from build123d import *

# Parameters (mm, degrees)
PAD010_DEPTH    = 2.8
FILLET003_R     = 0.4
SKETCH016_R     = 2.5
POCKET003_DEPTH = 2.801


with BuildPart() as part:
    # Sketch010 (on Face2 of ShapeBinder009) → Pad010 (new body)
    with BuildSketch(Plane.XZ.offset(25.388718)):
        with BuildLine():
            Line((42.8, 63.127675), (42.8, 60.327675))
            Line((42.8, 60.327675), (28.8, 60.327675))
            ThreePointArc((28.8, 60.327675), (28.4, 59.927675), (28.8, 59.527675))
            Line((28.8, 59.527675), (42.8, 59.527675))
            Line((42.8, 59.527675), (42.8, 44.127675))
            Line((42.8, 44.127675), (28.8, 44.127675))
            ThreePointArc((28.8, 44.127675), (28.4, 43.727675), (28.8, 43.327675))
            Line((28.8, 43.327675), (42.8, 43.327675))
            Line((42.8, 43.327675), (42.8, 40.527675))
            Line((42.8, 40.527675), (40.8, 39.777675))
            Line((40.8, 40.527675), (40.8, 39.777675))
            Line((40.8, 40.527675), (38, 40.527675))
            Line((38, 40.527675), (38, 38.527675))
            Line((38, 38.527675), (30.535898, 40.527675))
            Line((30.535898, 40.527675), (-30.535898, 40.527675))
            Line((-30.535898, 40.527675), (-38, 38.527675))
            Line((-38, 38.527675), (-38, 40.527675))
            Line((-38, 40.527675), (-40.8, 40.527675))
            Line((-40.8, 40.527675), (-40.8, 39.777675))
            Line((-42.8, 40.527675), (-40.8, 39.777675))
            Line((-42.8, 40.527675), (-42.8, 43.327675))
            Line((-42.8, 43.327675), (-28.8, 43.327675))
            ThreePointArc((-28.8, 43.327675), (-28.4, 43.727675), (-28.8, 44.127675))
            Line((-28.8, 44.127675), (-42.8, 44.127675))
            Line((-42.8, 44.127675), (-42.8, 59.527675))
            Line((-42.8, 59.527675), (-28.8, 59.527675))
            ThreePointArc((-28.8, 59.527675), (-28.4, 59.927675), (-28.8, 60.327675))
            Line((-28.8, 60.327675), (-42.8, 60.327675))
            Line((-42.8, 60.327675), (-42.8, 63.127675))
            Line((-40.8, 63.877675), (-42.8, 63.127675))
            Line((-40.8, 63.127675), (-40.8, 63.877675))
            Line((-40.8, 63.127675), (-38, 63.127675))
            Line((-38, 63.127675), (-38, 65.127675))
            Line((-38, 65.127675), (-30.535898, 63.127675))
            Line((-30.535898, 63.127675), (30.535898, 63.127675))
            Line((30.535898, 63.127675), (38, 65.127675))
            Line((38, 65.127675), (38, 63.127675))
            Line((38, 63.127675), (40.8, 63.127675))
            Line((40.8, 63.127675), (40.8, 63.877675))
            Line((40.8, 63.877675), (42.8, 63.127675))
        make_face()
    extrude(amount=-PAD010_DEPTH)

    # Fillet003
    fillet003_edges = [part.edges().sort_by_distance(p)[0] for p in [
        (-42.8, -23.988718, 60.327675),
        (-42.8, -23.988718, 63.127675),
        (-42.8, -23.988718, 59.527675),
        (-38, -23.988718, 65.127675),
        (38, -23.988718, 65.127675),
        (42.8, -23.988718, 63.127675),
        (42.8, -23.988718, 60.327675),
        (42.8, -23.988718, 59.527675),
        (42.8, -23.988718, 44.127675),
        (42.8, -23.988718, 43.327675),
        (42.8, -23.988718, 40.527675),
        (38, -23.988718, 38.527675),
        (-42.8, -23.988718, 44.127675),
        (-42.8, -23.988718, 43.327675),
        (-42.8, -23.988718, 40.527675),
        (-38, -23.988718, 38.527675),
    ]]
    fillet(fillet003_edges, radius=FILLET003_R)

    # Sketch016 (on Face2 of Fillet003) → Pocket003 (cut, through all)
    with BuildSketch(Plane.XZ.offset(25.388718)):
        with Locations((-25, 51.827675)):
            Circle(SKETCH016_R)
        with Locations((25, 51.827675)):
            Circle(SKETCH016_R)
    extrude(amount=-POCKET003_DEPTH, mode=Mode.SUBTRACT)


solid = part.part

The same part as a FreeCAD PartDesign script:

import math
import FreeCAD as App
import Part
import Sketcher
Q = App.Units.Quantity


def edges_at(feature, points):
    """Names of the edges that pass closest to the given points."""
    edges = feature.Shape.Edges
    near = lambda p: min(range(len(edges)), key=lambda i: edges[i].distToShape(Part.Vertex(*p))[0])
    return sorted({f"Edge{near(p) + 1}" for p in points})

doc = App.newDocument("Part")
params = doc.addObject("Spreadsheet::Sheet", "Params")
for row, (alias, value) in enumerate([
    ("sketch1_radius", "0.4 mm"),
    ("sketch1_width", "14 mm"),
    ("sketch1_height", "2 mm"),
    ("sketch1_width2", "2.8 mm"),
    ("sketch1_height2", "15.4 mm"),
    ("pad1_length", "2.8 mm"),
    ("fillet_radius", "0.4 mm"),
    ("sketch2_diameter", "5 mm"),
], start=1):
    params.set(f"A{row}", alias)
    params.set(f"B{row}", "=" + value)
    params.setAlias(f"B{row}", alias)

body = doc.addObject("PartDesign::Body", "Body")

# Sketch on XZ plane
sketch1 = body.newObject("Sketcher::SketchObject", "Sketch")
sketch1.AttachmentSupport = (doc.getObject("XZ_Plane"), [""])
sketch1.MapMode = "FlatFace"
sketch1.AttachmentOffset = App.Placement(App.Vector(0, 0, 25.388718), App.Rotation())
sketch1.addGeometry(Part.LineSegment(App.Vector(42.8, 60.33, 0), App.Vector(42.8, 63.13, 0)), False)
sketch1.addGeometry(Part.LineSegment(App.Vector(42.8, 63.13, 0), App.Vector(40.8, 63.88, 0)), False)
sketch1.addGeometry(Part.LineSegment(App.Vector(40.8, 63.88, 0), App.Vector(40.8, 63.13, 0)), False)
sketch1.addGeometry(Part.LineSegment(App.Vector(40.8, 63.13, 0), App.Vector(38, 63.13, 0)), False)
sketch1.addGeometry(Part.LineSegment(App.Vector(38, 63.13, 0), App.Vector(38, 65.13, 0)), False)
sketch1.addGeometry(Part.LineSegment(App.Vector(38, 65.13, 0), App.Vector(30.54, 63.13, 0)), False)
sketch1.addGeometry(Part.LineSegment(App.Vector(30.54, 63.13, 0), App.Vector(-30.54, 63.13, 0)), False)
sketch1.addGeometry(Part.LineSegment(App.Vector(-30.54, 63.13, 0), App.Vector(-38, 65.13, 0)), False)
sketch1.addGeometry(Part.LineSegment(App.Vector(-38, 65.13, 0), App.Vector(-38, 63.13, 0)), False)
sketch1.addGeometry(Part.LineSegment(App.Vector(-38, 63.13, 0), App.Vector(-40.8, 63.13, 0)), False)
sketch1.addGeometry(Part.LineSegment(App.Vector(-40.8, 63.13, 0), App.Vector(-40.8, 63.88, 0)), False)
sketch1.addGeometry(Part.LineSegment(App.Vector(-40.8, 63.88, 0), App.Vector(-42.8, 63.13, 0)), False)
sketch1.addGeometry(Part.LineSegment(App.Vector(-42.8, 63.13, 0), App.Vector(-42.8, 60.33, 0)), False)
sketch1.addGeometry(Part.LineSegment(App.Vector(-42.8, 60.33, 0), App.Vector(-28.8, 60.33, 0)), False)
sketch1.addGeometry(Part.ArcOfCircle(Part.Circle(App.Vector(-28.8, 59.93, 0), App.Vector(0, 0, 1), 0.4), math.radians(-90), math.radians(90)), False)
sketch1.addGeometry(Part.LineSegment(App.Vector(-28.8, 59.53, 0), App.Vector(-42.8, 59.53, 0)), False)
sketch1.addGeometry(Part.LineSegment(App.Vector(-42.8, 59.53, 0), App.Vector(-42.8, 44.13, 0)), False)
sketch1.addGeometry(Part.LineSegment(App.Vector(-42.8, 44.13, 0), App.Vector(-28.8, 44.13, 0)), False)
sketch1.addGeometry(Part.ArcOfCircle(Part.Circle(App.Vector(-28.8, 43.73, 0), App.Vector(0, 0, 1), 0.4), math.radians(-90), math.radians(90)), False)
sketch1.addGeometry(Part.LineSegment(App.Vector(-28.8, 43.33, 0), App.Vector(-42.8, 43.33, 0)), False)
sketch1.addGeometry(Part.LineSegment(App.Vector(-42.8, 43.33, 0), App.Vector(-42.8, 40.53, 0)), False)
sketch1.addGeometry(Part.LineSegment(App.Vector(-42.8, 40.53, 0), App.Vector(-40.8, 39.78, 0)), False)
sketch1.addGeometry(Part.LineSegment(App.Vector(-40.8, 39.78, 0), App.Vector(-40.8, 40.53, 0)), False)
sketch1.addGeometry(Part.LineSegment(App.Vector(-40.8, 40.53, 0), App.Vector(-38, 40.53, 0)), False)
sketch1.addGeometry(Part.LineSegment(App.Vector(-38, 40.53, 0), App.Vector(-38, 38.53, 0)), False)
sketch1.addGeometry(Part.LineSegment(App.Vector(-38, 38.53, 0), App.Vector(-30.54, 40.53, 0)), False)
sketch1.addGeometry(Part.LineSegment(App.Vector(-30.54, 40.53, 0), App.Vector(30.54, 40.53, 0)), False)
sketch1.addGeometry(Part.LineSegment(App.Vector(30.54, 40.53, 0), App.Vector(38, 38.53, 0)), False)
sketch1.addGeometry(Part.LineSegment(App.Vector(38, 38.53, 0), App.Vector(38, 40.53, 0)), False)
sketch1.addGeometry(Part.LineSegment(App.Vector(38, 40.53, 0), App.Vector(40.8, 40.53, 0)), False)
sketch1.addGeometry(Part.LineSegment(App.Vector(40.8, 40.53, 0), App.Vector(40.8, 39.78, 0)), False)
sketch1.addGeometry(Part.LineSegment(App.Vector(40.8, 39.78, 0), App.Vector(42.8, 40.53, 0)), False)
sketch1.addGeometry(Part.LineSegment(App.Vector(42.8, 40.53, 0), App.Vector(42.8, 43.33, 0)), False)
sketch1.addGeometry(Part.LineSegment(App.Vector(42.8, 43.33, 0), App.Vector(28.8, 43.33, 0)), False)
sketch1.addGeometry(Part.ArcOfCircle(Part.Circle(App.Vector(28.8, 43.73, 0), App.Vector(0, 0, 1), 0.4), math.radians(90), math.radians(270)), False)
sketch1.addGeometry(Part.LineSegment(App.Vector(28.8, 44.13, 0), App.Vector(42.8, 44.13, 0)), False)
sketch1.addGeometry(Part.LineSegment(App.Vector(42.8, 44.13, 0), App.Vector(42.8, 59.53, 0)), False)
sketch1.addGeometry(Part.LineSegment(App.Vector(42.8, 59.53, 0), App.Vector(28.8, 59.53, 0)), False)
sketch1.addGeometry(Part.ArcOfCircle(Part.Circle(App.Vector(28.8, 59.93, 0), App.Vector(0, 0, 1), 0.4), math.radians(90), math.radians(270)), False)
sketch1.addGeometry(Part.LineSegment(App.Vector(28.8, 60.33, 0), App.Vector(42.8, 60.33, 0)), False)
sketch1.addConstraint(Sketcher.Constraint("Coincident", 0, 2, 1, 1))
sketch1.addConstraint(Sketcher.Constraint("Coincident", 1, 2, 2, 1))
sketch1.addConstraint(Sketcher.Constraint("Coincident", 2, 2, 3, 1))
sketch1.addConstraint(Sketcher.Constraint("Coincident", 3, 2, 4, 1))
sketch1.addConstraint(Sketcher.Constraint("Coincident", 4, 2, 5, 1))
sketch1.addConstraint(Sketcher.Constraint("Coincident", 5, 2, 6, 1))
sketch1.addConstraint(Sketcher.Constraint("Coincident", 6, 2, 7, 1))
sketch1.addConstraint(Sketcher.Constraint("Coincident", 7, 2, 8, 1))
sketch1.addConstraint(Sketcher.Constraint("Coincident", 8, 2, 9, 1))
sketch1.addConstraint(Sketcher.Constraint("Coincident", 9, 2, 10, 1))
sketch1.addConstraint(Sketcher.Constraint("Coincident", 10, 2, 11, 1))
sketch1.addConstraint(Sketcher.Constraint("Coincident", 11, 2, 12, 1))
sketch1.addConstraint(Sketcher.Constraint("Coincident", 12, 2, 13, 1))
sketch1.addConstraint(Sketcher.Constraint("Tangent", 13, 2, 14, 2))
sketch1.addConstraint(Sketcher.Constraint("Tangent", 14, 1, 15, 1))
sketch1.addConstraint(Sketcher.Constraint("Coincident", 15, 2, 16, 1))
sketch1.addConstraint(Sketcher.Constraint("Coincident", 16, 2, 17, 1))
sketch1.addConstraint(Sketcher.Constraint("Tangent", 17, 2, 18, 2))
sketch1.addConstraint(Sketcher.Constraint("Tangent", 18, 1, 19, 1))
sketch1.addConstraint(Sketcher.Constraint("Coincident", 19, 2, 20, 1))
sketch1.addConstraint(Sketcher.Constraint("Coincident", 20, 2, 21, 1))
sketch1.addConstraint(Sketcher.Constraint("Coincident", 21, 2, 22, 1))
sketch1.addConstraint(Sketcher.Constraint("Coincident", 22, 2, 23, 1))
sketch1.addConstraint(Sketcher.Constraint("Coincident", 23, 2, 24, 1))
sketch1.addConstraint(Sketcher.Constraint("Coincident", 24, 2, 25, 1))
sketch1.addConstraint(Sketcher.Constraint("Coincident", 25, 2, 26, 1))
sketch1.addConstraint(Sketcher.Constraint("Coincident", 26, 2, 27, 1))
sketch1.addConstraint(Sketcher.Constraint("Coincident", 27, 2, 28, 1))
sketch1.addConstraint(Sketcher.Constraint("Coincident", 28, 2, 29, 1))
sketch1.addConstraint(Sketcher.Constraint("Coincident", 29, 2, 30, 1))
sketch1.addConstraint(Sketcher.Constraint("Coincident", 30, 2, 31, 1))
sketch1.addConstraint(Sketcher.Constraint("Coincident", 31, 2, 32, 1))
sketch1.addConstraint(Sketcher.Constraint("Coincident", 32, 2, 33, 1))
sketch1.addConstraint(Sketcher.Constraint("Tangent", 33, 2, 34, 2))
sketch1.addConstraint(Sketcher.Constraint("Tangent", 34, 1, 35, 1))
sketch1.addConstraint(Sketcher.Constraint("Coincident", 35, 2, 36, 1))
sketch1.addConstraint(Sketcher.Constraint("Coincident", 36, 2, 37, 1))
sketch1.addConstraint(Sketcher.Constraint("Tangent", 37, 2, 38, 2))
sketch1.addConstraint(Sketcher.Constraint("Tangent", 38, 1, 39, 1))
sketch1.addConstraint(Sketcher.Constraint("Coincident", 39, 2, 0, 1))
sketch1.addConstraint(Sketcher.Constraint("Vertical", 0))
sketch1.addConstraint(Sketcher.Constraint("Vertical", 2))
sketch1.addConstraint(Sketcher.Constraint("Horizontal", 3))
sketch1.addConstraint(Sketcher.Constraint("Vertical", 4))
sketch1.addConstraint(Sketcher.Constraint("Horizontal", 6))
sketch1.addConstraint(Sketcher.Constraint("Vertical", 8))
sketch1.addConstraint(Sketcher.Constraint("Horizontal", 9))
sketch1.addConstraint(Sketcher.Constraint("Vertical", 10))
sketch1.addConstraint(Sketcher.Constraint("Vertical", 12))
sketch1.addConstraint(Sketcher.Constraint("Horizontal", 13))
sketch1.addConstraint(Sketcher.Constraint("Horizontal", 15))
sketch1.addConstraint(Sketcher.Constraint("Vertical", 16))
sketch1.addConstraint(Sketcher.Constraint("Horizontal", 17))
sketch1.addConstraint(Sketcher.Constraint("Horizontal", 19))
sketch1.addConstraint(Sketcher.Constraint("Vertical", 20))
sketch1.addConstraint(Sketcher.Constraint("Vertical", 22))
sketch1.addConstraint(Sketcher.Constraint("Horizontal", 23))
sketch1.addConstraint(Sketcher.Constraint("Vertical", 24))
sketch1.addConstraint(Sketcher.Constraint("Horizontal", 26))
sketch1.addConstraint(Sketcher.Constraint("Vertical", 28))
sketch1.addConstraint(Sketcher.Constraint("Horizontal", 29))
sketch1.addConstraint(Sketcher.Constraint("Vertical", 30))
sketch1.addConstraint(Sketcher.Constraint("Vertical", 32))
sketch1.addConstraint(Sketcher.Constraint("Horizontal", 33))
sketch1.addConstraint(Sketcher.Constraint("Horizontal", 35))
sketch1.addConstraint(Sketcher.Constraint("Vertical", 36))
sketch1.addConstraint(Sketcher.Constraint("Horizontal", 37))
sketch1.addConstraint(Sketcher.Constraint("Horizontal", 39))
sketch1.addConstraint(Sketcher.Constraint("Equal", 14, 18))
sketch1.addConstraint(Sketcher.Constraint("Equal", 18, 34))
sketch1.addConstraint(Sketcher.Constraint("Equal", 34, 38))
sketch1.addConstraint(Sketcher.Constraint("Symmetric", 18, 3, 34, 3, -2))
sketch1.addConstraint(Sketcher.Constraint("Symmetric", 14, 3, 38, 3, -2))
sketch1.addConstraint(Sketcher.Constraint("Symmetric", 4, 2, 7, 2, -2))
sketch1.addConstraint(Sketcher.Constraint("Symmetric", 2, 2, 9, 2, -2))
sketch1.addConstraint(Sketcher.Constraint("Symmetric", 0, 2, 11, 2, -2))
sketch1.addConstraint(Sketcher.Constraint("Symmetric", 24, 2, 27, 2, -2))
sketch1.addConstraint(Sketcher.Constraint("Symmetric", 22, 2, 29, 2, -2))
sketch1.addConstraint(Sketcher.Constraint("Symmetric", 20, 2, 31, 2, -2))
sketch1.addConstraint(Sketcher.Constraint("Parallel", 1, 21))
sketch1.addConstraint(Sketcher.Constraint("Parallel", 5, 25))
sketch1.addConstraint(Sketcher.Constraint("Parallel", 7, 27))
sketch1.addConstraint(Sketcher.Constraint("Parallel", 11, 31))
sketch1.addConstraint(Sketcher.Constraint("Horizontal", 0, 2, 2, 2))
sketch1.addConstraint(Sketcher.Constraint("Horizontal", 3, 2, 5, 2))
sketch1.addConstraint(Sketcher.Constraint("Horizontal", 1, 2, 10, 2))
sketch1.addConstraint(Sketcher.Constraint("Horizontal", 20, 2, 22, 2))
sketch1.addConstraint(Sketcher.Constraint("Horizontal", 23, 2, 25, 2))
sketch1.addConstraint(Sketcher.Constraint("Vertical", 14, 3, 18, 3))
sketch1.addConstraint(Sketcher.Constraint("Vertical", 12, 2, 15, 2))
sketch1.addConstraint(Sketcher.Constraint("Vertical", 16, 2, 19, 2))
sketch1.addConstraint(Sketcher.Constraint("Vertical", 10, 2, 21, 2))
sketch1.addConstraint(Sketcher.Constraint("Vertical", 8, 2, 23, 2))
sketch1.addConstraint(Sketcher.Constraint("Vertical", 6, 2, 25, 2))
sketch1.addConstraint(Sketcher.Constraint("Vertical", 5, 2, 26, 2))
sketch1.addConstraint(Sketcher.Constraint("Vertical", 32, 2, 35, 2))
sketch1.addConstraint(Sketcher.Constraint("Equal", 29, 0))
sketch1.addConstraint(Sketcher.Constraint("Equal", 12, 20))
sketch1.addConstraint(Sketcher.Constraint("Radius", 14, Q("0.4 mm")))
sketch1.addConstraint(Sketcher.Constraint("DistanceX", 13, 1, 13, 2, Q("14 mm")))
sketch1.addConstraint(Sketcher.Constraint("DistanceY", 4, 1, 4, 2, Q("2 mm")))
sketch1.addConstraint(Sketcher.Constraint("Angle", 5, Q("-165.000001 deg")))
sketch1.addConstraint(Sketcher.Constraint("DistanceX", 3, 2, 3, 1, Q("2.8 mm")))
sketch1.addConstraint(Sketcher.Constraint("DistanceY", 16, 2, 16, 1, Q("15.4 mm")))
sketch1.addConstraint(Sketcher.Constraint("DistanceX", -1, 1, 3, 2, Q("38 mm")))
sketch1.addConstraint(Sketcher.Constraint("DistanceX", 1, 2, 0, 2, Q("2 mm")))
sketch1.addConstraint(Sketcher.Constraint("DistanceY", 2, 2, 2, 1, Q("0.75 mm")))
sketch1.addConstraint(Sketcher.Constraint("DistanceY", -1, 1, 14, 3, Q("59.927675 mm")))
sketch1.setExpression("Constraints[98]", "Params.sketch1_radius")
sketch1.setExpression("Constraints[99]", "Params.sketch1_width")
sketch1.setExpression("Constraints[100]", "Params.sketch1_height")
sketch1.setExpression("Constraints[102]", "Params.sketch1_width2")
sketch1.setExpression("Constraints[103]", "Params.sketch1_height2")
pad1 = body.newObject("PartDesign::Pad", "Pad")
pad1.Profile = sketch1
pad1.setExpression("Length", "Params.pad1_length")
pad1.Reversed = True
doc.recompute()

fillet = body.newObject("PartDesign::Fillet", "Fillet")
fillet.Base = (pad1, edges_at(pad1, [
    (-42.8, -23.989, 60.328),
    (-42.8, -23.989, 63.128),
    (-42.8, -23.989, 59.528),
    (-38, -23.989, 65.128),
    (38, -23.989, 65.128),
    (42.8, -23.989, 63.128),
    (42.8, -23.989, 60.328),
    (42.8, -23.989, 59.528),
    (42.8, -23.989, 44.128),
    (42.8, -23.989, 43.328),
    (42.8, -23.989, 40.528),
    (38, -23.989, 38.528),
    (-42.8, -23.989, 44.128),
    (-42.8, -23.989, 43.328),
    (-42.8, -23.989, 40.528),
    (-38, -23.989, 38.528),
]))
fillet.setExpression("Radius", "Params.fillet_radius")

# Sketch on XZ plane
sketch2 = body.newObject("Sketcher::SketchObject", "Sketch001")
sketch2.AttachmentSupport = (doc.getObject("XZ_Plane"), [""])
sketch2.MapMode = "FlatFace"
sketch2.AttachmentOffset = App.Placement(App.Vector(0, 0, 25.388718), App.Rotation())
sketch2.addGeometry(Part.Circle(App.Vector(-25, 51.8, 0), App.Vector(0, 0, 1), 2.5), False)
sketch2.addGeometry(Part.Circle(App.Vector(25, 51.8, 0), App.Vector(0, 0, 1), 2.5), False)
sketch2.addConstraint(Sketcher.Constraint("Equal", 0, 1))
sketch2.addConstraint(Sketcher.Constraint("Symmetric", 0, 3, 1, 3, -2))
sketch2.addConstraint(Sketcher.Constraint("Diameter", 0, Q("5 mm")))
sketch2.addConstraint(Sketcher.Constraint("DistanceX", 0, 3, -1, 1, Q("25 mm")))
sketch2.addConstraint(Sketcher.Constraint("DistanceY", -1, 1, 0, 3, Q("51.827675 mm")))
sketch2.setExpression("Constraints[2]", "Params.sketch2_diameter")
pocket1 = body.newObject("PartDesign::Pocket", "Pocket")
pocket1.Profile = sketch2
pocket1.Type = "ThroughAll"

doc.recompute()
